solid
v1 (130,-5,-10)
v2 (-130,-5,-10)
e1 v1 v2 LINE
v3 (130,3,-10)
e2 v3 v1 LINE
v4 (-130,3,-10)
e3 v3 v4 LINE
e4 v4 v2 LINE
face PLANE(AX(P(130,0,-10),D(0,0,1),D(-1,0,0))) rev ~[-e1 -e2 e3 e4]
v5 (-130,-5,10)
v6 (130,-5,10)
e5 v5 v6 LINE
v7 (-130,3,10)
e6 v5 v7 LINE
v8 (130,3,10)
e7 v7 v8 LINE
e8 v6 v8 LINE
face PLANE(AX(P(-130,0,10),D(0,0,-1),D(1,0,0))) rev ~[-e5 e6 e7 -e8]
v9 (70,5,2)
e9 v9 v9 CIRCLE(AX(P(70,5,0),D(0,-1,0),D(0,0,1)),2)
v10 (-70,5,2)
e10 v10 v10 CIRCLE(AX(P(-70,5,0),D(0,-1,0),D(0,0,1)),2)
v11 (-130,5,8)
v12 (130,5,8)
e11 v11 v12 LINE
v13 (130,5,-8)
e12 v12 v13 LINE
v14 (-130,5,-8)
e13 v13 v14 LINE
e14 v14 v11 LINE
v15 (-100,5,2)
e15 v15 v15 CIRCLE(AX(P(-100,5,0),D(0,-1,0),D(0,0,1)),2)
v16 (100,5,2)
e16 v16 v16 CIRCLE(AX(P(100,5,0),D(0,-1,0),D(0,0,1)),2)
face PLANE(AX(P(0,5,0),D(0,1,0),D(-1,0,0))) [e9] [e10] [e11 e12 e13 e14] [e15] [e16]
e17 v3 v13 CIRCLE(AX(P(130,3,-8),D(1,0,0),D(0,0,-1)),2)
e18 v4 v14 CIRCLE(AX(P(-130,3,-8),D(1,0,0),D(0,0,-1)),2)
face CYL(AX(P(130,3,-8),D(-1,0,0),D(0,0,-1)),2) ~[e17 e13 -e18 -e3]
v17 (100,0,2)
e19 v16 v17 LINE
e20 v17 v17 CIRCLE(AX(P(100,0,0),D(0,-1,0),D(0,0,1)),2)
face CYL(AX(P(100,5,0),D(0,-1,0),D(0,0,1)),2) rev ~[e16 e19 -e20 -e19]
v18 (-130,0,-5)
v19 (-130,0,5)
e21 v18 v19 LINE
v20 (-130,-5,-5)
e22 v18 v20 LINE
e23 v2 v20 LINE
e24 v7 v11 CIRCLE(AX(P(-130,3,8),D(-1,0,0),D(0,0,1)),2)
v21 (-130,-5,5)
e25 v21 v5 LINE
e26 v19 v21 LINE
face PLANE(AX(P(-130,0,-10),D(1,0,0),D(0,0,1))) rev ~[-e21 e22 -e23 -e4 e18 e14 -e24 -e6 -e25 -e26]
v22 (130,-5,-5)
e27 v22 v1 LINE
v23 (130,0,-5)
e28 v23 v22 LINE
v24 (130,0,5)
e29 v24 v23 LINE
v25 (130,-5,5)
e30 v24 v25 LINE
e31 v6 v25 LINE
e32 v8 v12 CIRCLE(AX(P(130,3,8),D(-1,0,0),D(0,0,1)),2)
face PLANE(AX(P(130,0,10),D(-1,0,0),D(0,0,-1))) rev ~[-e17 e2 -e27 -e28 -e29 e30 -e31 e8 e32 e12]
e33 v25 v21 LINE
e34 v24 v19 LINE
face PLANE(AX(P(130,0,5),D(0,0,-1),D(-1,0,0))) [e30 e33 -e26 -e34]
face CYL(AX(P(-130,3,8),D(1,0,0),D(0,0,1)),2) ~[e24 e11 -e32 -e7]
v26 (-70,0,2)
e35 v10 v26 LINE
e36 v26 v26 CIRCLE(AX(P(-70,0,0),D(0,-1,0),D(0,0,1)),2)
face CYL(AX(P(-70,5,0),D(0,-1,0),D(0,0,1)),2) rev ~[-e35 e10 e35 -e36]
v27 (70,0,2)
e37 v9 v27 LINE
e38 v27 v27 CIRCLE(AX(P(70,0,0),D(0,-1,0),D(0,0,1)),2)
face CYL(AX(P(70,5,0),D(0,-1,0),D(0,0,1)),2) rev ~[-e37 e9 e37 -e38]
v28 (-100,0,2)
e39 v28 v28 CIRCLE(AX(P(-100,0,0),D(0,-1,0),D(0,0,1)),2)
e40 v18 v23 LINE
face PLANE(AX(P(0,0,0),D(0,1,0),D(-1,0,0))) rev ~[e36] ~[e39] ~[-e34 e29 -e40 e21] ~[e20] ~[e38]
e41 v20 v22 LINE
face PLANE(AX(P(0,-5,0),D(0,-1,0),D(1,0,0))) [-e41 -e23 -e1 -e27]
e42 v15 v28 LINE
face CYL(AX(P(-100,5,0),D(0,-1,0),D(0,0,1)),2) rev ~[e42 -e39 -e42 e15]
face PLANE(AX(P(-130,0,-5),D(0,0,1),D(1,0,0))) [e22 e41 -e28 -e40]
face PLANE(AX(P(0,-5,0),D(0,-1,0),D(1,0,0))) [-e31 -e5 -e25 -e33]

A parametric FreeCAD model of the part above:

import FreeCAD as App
import Part
import Sketcher
from FreeCAD import Vector


def edges_at(feature, points):
    """Names of the edges that pass closest to the given points."""
    edges = feature.Shape.Edges
    near = lambda p: min(range(len(edges)), key=lambda i: edges[i].distToShape(Part.Vertex(*p))[0])
    return sorted({f"Edge{near(p) + 1}" for p in points})

doc = App.newDocument("Part")
body = doc.addObject("PartDesign::Body", "Body")

# Sketch on XZ plane
sketch1 = doc.addObject("Sketcher::SketchObject", "Sketch")
body.addObject(sketch1)
sketch1.AttachmentSupport = (doc.XZ_Plane, [""])
sketch1.MapMode = "FlatFace"
sketch1.addGeometry([
    Part.LineSegment(Vector(-130, -10, 0), Vector(-130, 10, 0)),
    Part.LineSegment(Vector(-130, 10, 0), Vector(130, 10, 0)),
    Part.LineSegment(Vector(130, 10, 0), Vector(130, -10, 0)),
    Part.LineSegment(Vector(130, -10, 0), Vector(-130, -10, 0)),
], False)
sketch1.addConstraint([
    Sketcher.Constraint("Coincident", 0, 2, 1, 1),
    Sketcher.Constraint("Coincident", 1, 2, 2, 1),
    Sketcher.Constraint("Coincident", 2, 2, 3, 1),
    Sketcher.Constraint("Coincident", 3, 2, 0, 1),
    Sketcher.Constraint("Vertical", 0),
    Sketcher.Constraint("Horizontal", 1),
    Sketcher.Constraint("Vertical", 2),
    Sketcher.Constraint("Horizontal", 3),
    Sketcher.Constraint("Symmetric", 0, 2, 2, 2, -1, 1),
    Sketcher.Constraint("DistanceX", 1, 1, 1, 2, 260.0),
    Sketcher.Constraint("DistanceY", 0, 1, 0, 2, 20.0),
])
pad1 = doc.addObject("PartDesign::Pad", "Pad")
body.addObject(pad1)
pad1.Profile = sketch1
pad1.Length = 5
pad1.Reversed = True

# Sketch on XZ plane
sketch2 = doc.addObject("Sketcher::SketchObject", "Sketch001")
body.addObject(sketch2)
sketch2.AttachmentSupport = (doc.XZ_Plane, [""])
sketch2.MapMode = "FlatFace"
sketch2.addGeometry([
    Part.LineSegment(Vector(-130, 10, 0), Vector(-130, 5, 0)),  # 0
    Part.LineSegment(Vector(-130, 5, 0), Vector(130, 5, 0)),  # 1
    Part.LineSegment(Vector(130, 5, 0), Vector(130, 10, 0)),  # 2
    Part.LineSegment(Vector(130, 10, 0), Vector(-130, 10, 0)),  # 3
    Part.LineSegment(Vector(-130, -5, 0), Vector(-130, -10, 0)),  # 4
    Part.LineSegment(Vector(-130, -10, 0), Vector(130, -10, 0)),  # 5
    Part.LineSegment(Vector(130, -10, 0), Vector(130, -5, 0)),  # 6
    Part.LineSegment(Vector(130, -5, 0), Vector(-130, -5, 0)),  # 7
], False)
sketch2.addConstraint([
    Sketcher.Constraint("Coincident", 0, 2, 1, 1),
    Sketcher.Constraint("Coincident", 1, 2, 2, 1),
    Sketcher.Constraint("Coincident", 2, 2, 3, 1),
    Sketcher.Constraint("Coincident", 3, 2, 0, 1),
    Sketcher.Constraint("Coincident", 4, 2, 5, 1),
    Sketcher.Constraint("Coincident", 5, 2, 6, 1),
    Sketcher.Constraint("Coincident", 6, 2, 7, 1),
    Sketcher.Constraint("Coincident", 7, 2, 4, 1),
    Sketcher.Constraint("Vertical", 0),
    Sketcher.Constraint("Horizontal", 1),
    Sketcher.Constraint("Vertical", 2),
    Sketcher.Constraint("Horizontal", 3),
    Sketcher.Constraint("Vertical", 4),
    Sketcher.Constraint("Horizontal", 5),
    Sketcher.Constraint("Vertical", 6),
    Sketcher.Constraint("Horizontal", 7),
    Sketcher.Constraint("Symmetric", 2, 2, 4, 2, -1, 1),
    Sketcher.Constraint("Symmetric", 0, 2, 6, 2, -1, 1),
    Sketcher.Constraint("Vertical", 3, 2, 4, 2),
    Sketcher.Constraint("DistanceX", 1, 1, 1, 2, 260.0),
    Sketcher.Constraint("DistanceY", 0, 2, 0, 1, 5.0),
    Sketcher.Constraint("DistanceY", -1, 1, 0, 2, 5.0),
])
pad2 = doc.addObject("PartDesign::Pad", "Pad001")
body.addObject(pad2)
pad2.Profile = sketch2
pad2.Length = 5
doc.recompute()

fillet = doc.addObject("PartDesign::Fillet", "Fillet")
body.addObject(fillet)
fillet.Base = (pad2, edges_at(pad2, [(0, 5, 10), (0, 5, -10)]))
fillet.Radius = 2

# Sketch on XZ plane
sketch3 = doc.addObject("Sketcher::SketchObject", "Sketch002")
body.addObject(sketch3)
sketch3.AttachmentSupport = (doc.XZ_Plane, [""])
sketch3.MapMode = "FlatFace"
sketch3.AttachmentOffset = App.Placement(Vector(0, 0, -5), App.Rotation())
sketch3.addGeometry([
    Part.Circle(Vector(100, 0, 0), Vector(0, 0, 1), 2),
    Part.Circle(Vector(70, 0, 0), Vector(0, 0, 1), 2),
    Part.Circle(Vector(-70, 0, 0), Vector(0, 0, 1), 2),
    Part.Circle(Vector(-100, 0, 0), Vector(0, 0, 1), 2),
], False)
sketch3.addConstraint([
    Sketcher.Constraint("Equal", 0, 1),
    Sketcher.Constraint("Equal", 1, 2),
    Sketcher.Constraint("Equal", 2, 3),
    Sketcher.Constraint("Symmetric", 1, 3, 2, 3, -1, 1),
    Sketcher.Constraint("Symmetric", 0, 3, 3, 3, -1, 1),
    Sketcher.Constraint("PointOnObject", 0, 3, -1),
    Sketcher.Constraint("PointOnObject", 1, 3, -1),
    Sketcher.Constraint("Diameter", 0, 4.0),
    Sketcher.Constraint("DistanceX", -1, 1, 0, 3, 100.0),
    Sketcher.Constraint("DistanceX", -1, 1, 1, 3, 70.0),
])
doc.recompute()
hole = doc.addObject("PartDesign::Hole", "Hole")
body.addObject(hole)
hole.Profile = sketch3
hole.ThreadType = "None"
hole.Diameter = 4
hole.DepthType = "ThroughAll"
hole.Reversed = True

doc.recompute()
